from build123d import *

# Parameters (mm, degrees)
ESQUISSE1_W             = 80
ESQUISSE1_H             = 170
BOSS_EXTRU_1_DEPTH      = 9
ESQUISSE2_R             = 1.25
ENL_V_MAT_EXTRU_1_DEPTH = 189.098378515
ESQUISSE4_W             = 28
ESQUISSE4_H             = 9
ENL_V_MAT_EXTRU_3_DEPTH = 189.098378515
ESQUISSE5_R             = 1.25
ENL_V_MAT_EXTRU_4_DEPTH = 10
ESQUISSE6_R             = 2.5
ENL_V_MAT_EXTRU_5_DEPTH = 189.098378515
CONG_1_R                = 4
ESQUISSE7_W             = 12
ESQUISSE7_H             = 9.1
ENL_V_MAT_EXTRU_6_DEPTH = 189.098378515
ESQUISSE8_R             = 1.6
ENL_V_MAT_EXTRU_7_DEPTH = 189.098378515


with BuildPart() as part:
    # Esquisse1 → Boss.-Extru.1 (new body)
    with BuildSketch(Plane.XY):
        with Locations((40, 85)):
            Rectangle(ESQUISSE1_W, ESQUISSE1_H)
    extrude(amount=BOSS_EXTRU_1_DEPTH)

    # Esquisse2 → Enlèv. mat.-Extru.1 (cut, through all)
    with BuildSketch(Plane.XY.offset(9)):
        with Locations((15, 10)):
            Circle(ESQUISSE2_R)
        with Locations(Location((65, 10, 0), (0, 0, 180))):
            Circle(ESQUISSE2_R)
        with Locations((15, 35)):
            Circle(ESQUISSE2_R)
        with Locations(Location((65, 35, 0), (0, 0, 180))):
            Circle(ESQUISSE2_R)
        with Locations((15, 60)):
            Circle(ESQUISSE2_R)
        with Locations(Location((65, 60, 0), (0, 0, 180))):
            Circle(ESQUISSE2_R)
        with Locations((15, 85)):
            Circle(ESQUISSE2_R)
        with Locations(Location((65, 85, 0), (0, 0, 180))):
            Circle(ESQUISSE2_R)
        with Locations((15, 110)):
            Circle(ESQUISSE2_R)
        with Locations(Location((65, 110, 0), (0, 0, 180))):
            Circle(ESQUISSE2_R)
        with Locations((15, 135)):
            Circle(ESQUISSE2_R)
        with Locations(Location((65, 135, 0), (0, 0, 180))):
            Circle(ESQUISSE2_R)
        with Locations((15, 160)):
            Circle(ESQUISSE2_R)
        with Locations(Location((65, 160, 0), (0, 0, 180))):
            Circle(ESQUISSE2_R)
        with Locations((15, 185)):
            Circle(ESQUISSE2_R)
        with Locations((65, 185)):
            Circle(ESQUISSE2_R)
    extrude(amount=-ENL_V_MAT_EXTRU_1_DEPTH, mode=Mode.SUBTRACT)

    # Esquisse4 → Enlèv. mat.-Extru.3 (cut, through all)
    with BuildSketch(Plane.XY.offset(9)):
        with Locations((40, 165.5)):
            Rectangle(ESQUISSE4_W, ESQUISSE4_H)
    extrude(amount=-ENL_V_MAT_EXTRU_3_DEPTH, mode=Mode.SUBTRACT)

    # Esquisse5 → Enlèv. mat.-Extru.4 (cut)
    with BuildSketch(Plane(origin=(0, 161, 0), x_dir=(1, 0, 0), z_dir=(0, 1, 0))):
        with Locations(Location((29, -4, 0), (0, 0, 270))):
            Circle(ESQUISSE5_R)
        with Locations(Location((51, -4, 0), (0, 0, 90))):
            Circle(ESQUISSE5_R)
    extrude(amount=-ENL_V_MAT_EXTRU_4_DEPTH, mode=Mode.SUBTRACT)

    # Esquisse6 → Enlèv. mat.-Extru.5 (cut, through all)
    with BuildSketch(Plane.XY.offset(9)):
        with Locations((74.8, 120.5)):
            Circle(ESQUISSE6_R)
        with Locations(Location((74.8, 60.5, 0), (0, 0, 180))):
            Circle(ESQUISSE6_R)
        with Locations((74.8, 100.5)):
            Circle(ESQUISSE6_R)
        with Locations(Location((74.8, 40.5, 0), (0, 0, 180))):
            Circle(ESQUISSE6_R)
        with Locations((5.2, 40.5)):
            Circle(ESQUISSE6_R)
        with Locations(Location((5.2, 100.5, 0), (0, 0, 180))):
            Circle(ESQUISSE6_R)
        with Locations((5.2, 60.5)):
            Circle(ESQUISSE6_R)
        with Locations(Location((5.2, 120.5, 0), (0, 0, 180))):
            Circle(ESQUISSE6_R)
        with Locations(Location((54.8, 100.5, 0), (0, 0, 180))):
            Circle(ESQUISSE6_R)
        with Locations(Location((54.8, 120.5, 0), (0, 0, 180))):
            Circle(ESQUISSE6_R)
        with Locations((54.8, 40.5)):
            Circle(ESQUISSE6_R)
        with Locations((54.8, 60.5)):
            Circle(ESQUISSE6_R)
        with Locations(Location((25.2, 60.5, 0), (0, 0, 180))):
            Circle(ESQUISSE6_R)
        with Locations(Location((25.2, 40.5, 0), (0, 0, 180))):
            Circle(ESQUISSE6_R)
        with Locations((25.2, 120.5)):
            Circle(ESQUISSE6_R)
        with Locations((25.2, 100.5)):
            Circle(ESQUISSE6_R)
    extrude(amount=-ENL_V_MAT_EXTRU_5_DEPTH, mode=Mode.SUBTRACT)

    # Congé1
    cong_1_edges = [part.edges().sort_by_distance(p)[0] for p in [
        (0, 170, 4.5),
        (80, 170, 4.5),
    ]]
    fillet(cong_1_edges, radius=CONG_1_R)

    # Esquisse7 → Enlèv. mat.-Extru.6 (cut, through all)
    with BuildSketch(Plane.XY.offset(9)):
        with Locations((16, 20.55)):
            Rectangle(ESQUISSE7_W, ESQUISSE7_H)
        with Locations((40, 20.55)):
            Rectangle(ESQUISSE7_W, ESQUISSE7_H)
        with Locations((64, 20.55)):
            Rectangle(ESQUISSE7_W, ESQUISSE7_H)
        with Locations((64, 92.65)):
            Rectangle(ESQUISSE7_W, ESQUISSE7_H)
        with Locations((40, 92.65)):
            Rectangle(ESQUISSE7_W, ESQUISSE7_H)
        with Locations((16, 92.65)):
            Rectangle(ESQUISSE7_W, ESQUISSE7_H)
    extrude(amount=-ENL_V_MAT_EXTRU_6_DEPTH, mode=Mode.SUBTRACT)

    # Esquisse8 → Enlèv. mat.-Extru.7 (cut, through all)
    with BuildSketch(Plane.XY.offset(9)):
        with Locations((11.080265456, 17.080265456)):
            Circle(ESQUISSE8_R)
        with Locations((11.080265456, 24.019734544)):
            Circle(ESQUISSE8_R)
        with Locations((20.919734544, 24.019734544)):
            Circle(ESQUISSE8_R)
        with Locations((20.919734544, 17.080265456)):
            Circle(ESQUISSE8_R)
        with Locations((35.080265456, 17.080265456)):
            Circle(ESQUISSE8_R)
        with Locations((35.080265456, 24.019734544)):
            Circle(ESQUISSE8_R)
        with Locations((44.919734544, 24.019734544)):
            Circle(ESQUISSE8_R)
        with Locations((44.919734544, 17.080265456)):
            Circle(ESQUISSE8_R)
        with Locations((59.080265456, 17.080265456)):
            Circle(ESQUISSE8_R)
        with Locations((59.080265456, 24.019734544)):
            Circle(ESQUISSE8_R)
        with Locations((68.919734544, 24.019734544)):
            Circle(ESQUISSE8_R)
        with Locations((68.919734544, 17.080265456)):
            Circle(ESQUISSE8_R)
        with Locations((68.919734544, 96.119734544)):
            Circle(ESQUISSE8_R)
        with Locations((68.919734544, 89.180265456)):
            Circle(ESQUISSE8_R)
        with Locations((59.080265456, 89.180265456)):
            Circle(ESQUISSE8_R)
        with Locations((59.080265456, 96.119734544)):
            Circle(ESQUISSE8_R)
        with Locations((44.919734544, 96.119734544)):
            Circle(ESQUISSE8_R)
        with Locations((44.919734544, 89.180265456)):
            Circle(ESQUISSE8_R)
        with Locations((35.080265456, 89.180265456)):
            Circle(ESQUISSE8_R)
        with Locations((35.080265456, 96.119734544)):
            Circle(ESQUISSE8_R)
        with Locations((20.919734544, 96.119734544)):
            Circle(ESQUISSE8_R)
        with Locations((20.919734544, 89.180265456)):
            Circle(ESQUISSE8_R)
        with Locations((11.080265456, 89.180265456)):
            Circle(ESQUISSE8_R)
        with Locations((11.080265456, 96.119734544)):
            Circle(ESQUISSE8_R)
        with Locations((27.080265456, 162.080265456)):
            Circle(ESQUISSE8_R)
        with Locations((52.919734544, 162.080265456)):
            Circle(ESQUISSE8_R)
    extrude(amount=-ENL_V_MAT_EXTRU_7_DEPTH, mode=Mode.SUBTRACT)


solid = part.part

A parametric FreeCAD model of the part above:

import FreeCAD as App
import Part
import Sketcher


def edges_at(feature, points):
    """Names of the edges that pass closest to the given points."""
    edges = feature.Shape.Edges
    near = lambda p: min(range(len(edges)), key=lambda i: edges[i].distToShape(Part.Vertex(*p))[0])
    return sorted({f"Edge{near(p) + 1}" for p in points})


def add_polygon(sketch, points):
    """Adds a closed chain of lines whose ends are joined by coincident constraints."""
    first, n = sketch.GeometryCount, len(points)
    for a, b in zip(points, points[1:] + points[:1]):
        sketch.addGeometry(Part.LineSegment(App.Vector(*a, 0), App.Vector(*b, 0)), False)
    for i in range(n):
        sketch.addConstraint(Sketcher.Constraint("Coincident", first + i, 2, first + (i + 1) % n, 1))

doc = App.newDocument("Part")
body = doc.addObject("PartDesign::Body", "Body")

# Sketch on XY plane
sketch1 = doc.addObject("Sketcher::SketchObject", "Sketch")
body.addObject(sketch1)
sketch1.AttachmentSupport = (doc.XY_Plane, [""])
sketch1.MapMode = "FlatFace"
add_polygon(sketch1, [(0, 170), (0, 0), (80, 0), (80, 170)])  # lines 0-3
sketch1.addConstraint(Sketcher.Constraint("Vertical", 0))
sketch1.addConstraint(Sketcher.Constraint("Horizontal", 1))
sketch1.addConstraint(Sketcher.Constraint("Vertical", 2))
sketch1.addConstraint(Sketcher.Constraint("Horizontal", 3))
sketch1.addConstraint(Sketcher.Constraint("Coincident", 0, 2, -1, 1))
sketch1.addConstraint(Sketcher.Constraint("DistanceX", 1, 1, 1, 2, 80.0))
sketch1.addConstraint(Sketcher.Constraint("DistanceY", 0, 2, 0, 1, 170.0))
pad1 = doc.addObject("PartDesign::Pad", "Pad")
body.addObject(pad1)
pad1.Profile = sketch1
pad1.Length = 9

# Sketch on XY plane
sketch2 = doc.addObject("Sketcher::SketchObject", "Sketch001")
body.addObject(sketch2)
sketch2.AttachmentSupport = (doc.XY_Plane, [""])
sketch2.MapMode = "FlatFace"
sketch2.AttachmentOffset = App.Placement(App.Vector(0, 0, 9), App.Rotation())
sketch2.addGeometry(Part.Circle(App.Vector(15, 10, 0), App.Vector(0, 0, 1), 1.2), False)
sketch2.addGeometry(Part.Circle(App.Vector(65, 10, 0), App.Vector(0, 0, 1), 1.2), False)
sketch2.addGeometry(Part.Circle(App.Vector(15, 35, 0), App.Vector(0, 0, 1), 1.2), False)
sketch2.addGeometry(Part.Circle(App.Vector(65, 35, 0), App.Vector(0, 0, 1), 1.2), False)
sketch2.addGeometry(Part.Circle(App.Vector(15, 60, 0), App.Vector(0, 0, 1), 1.2), False)
sketch2.addGeometry(Part.Circle(App.Vector(65, 60, 0), App.Vector(0, 0, 1), 1.2), False)
sketch2.addGeometry(Part.Circle(App.Vector(15, 85, 0), App.Vector(0, 0, 1), 1.2), False)
sketch2.addGeometry(Part.Circle(App.Vector(65, 85, 0), App.Vector(0, 0, 1), 1.2), False)
sketch2.addGeometry(Part.Circle(App.Vector(15, 110, 0), App.Vector(0, 0, 1), 1.2), False)
sketch2.addGeometry(Part.Circle(App.Vector(65, 110, 0), App.Vector(0, 0, 1), 1.2), False)
sketch2.addGeometry(Part.Circle(App.Vector(15, 135, 0), App.Vector(0, 0, 1), 1.2), False)
sketch2.addGeometry(Part.Circle(App.Vector(65, 135, 0), App.Vector(0, 0, 1), 1.2), False)
sketch2.addGeometry(Part.Circle(App.Vector(15, 160, 0), App.Vector(0, 0, 1), 1.2), False)
sketch2.addGeometry(Part.Circle(App.Vector(65, 160, 0), App.Vector(0, 0, 1), 1.2), False)
sketch2.addGeometry(Part.Circle(App.Vector(15, 185, 0), App.Vector(0, 0, 1), 1.2), False)
sketch2.addGeometry(Part.Circle(App.Vector(65, 185, 0), App.Vector(0, 0, 1), 1.2), False)
sketch2.addConstraint(Sketcher.Constraint("Equal", 0, 1))
sketch2.addConstraint(Sketcher.Constraint("Equal", 1, 2))
sketch2.addConstraint(Sketcher.Constraint("Equal", 2, 3))
sketch2.addConstraint(Sketcher.Constraint("Equal", 3, 4))
sketch2.addConstraint(Sketcher.Constraint("Equal", 4, 5))
sketch2.addConstraint(Sketcher.Constraint("Equal", 5, 6))
sketch2.addConstraint(Sketcher.Constraint("Equal", 6, 7))
sketch2.addConstraint(Sketcher.Constraint("Equal", 7, 8))
sketch2.addConstraint(Sketcher.Constraint("Equal", 8, 9))
sketch2.addConstraint(Sketcher.Constraint("Equal", 9, 10))
sketch2.addConstraint(Sketcher.Constraint("Equal", 10, 11))
sketch2.addConstraint(Sketcher.Constraint("Equal", 11, 12))
sketch2.addConstraint(Sketcher.Constraint("Equal", 12, 13))
sketch2.addConstraint(Sketcher.Constraint("Equal", 13, 14))
sketch2.addConstraint(Sketcher.Constraint("Equal", 14, 15))
sketch2.addConstraint(Sketcher.Constraint("Horizontal", 0, 3, 1, 3))
sketch2.addConstraint(Sketcher.Constraint("Horizontal", 2, 3, 3, 3))
sketch2.addConstraint(Sketcher.Constraint("Horizontal", 4, 3, 5, 3))
sketch2.addConstraint(Sketcher.Constraint("Horizontal", 6, 3, 7, 3))
sketch2.addConstraint(Sketcher.Constraint("Horizontal", 8, 3, 9, 3))
sketch2.addConstraint(Sketcher.Constraint("Horizontal", 10, 3, 11, 3))
sketch2.addConstraint(Sketcher.Constraint("Horizontal", 12, 3, 13, 3))
sketch2.addConstraint(Sketcher.Constraint("Horizontal", 14, 3, 15, 3))
sketch2.addConstraint(Sketcher.Constraint("Vertical", 0, 3, 2, 3))
sketch2.addConstraint(Sketcher.Constraint("Vertical", 1, 3, 3, 3))
sketch2.addConstraint(Sketcher.Constraint("Vertical", 2, 3, 4, 3))
sketch2.addConstraint(Sketcher.Constraint("Vertical", 3, 3, 5, 3))
sketch2.addConstraint(Sketcher.Constraint("Vertical", 4, 3, 6, 3))
sketch2.addConstraint(Sketcher.Constraint("Vertical", 5, 3, 7, 3))
sketch2.addConstraint(Sketcher.Constraint("Vertical", 6, 3, 8, 3))
sketch2.addConstraint(Sketcher.Constraint("Vertical", 7, 3, 9, 3))
sketch2.addConstraint(Sketcher.Constraint("Vertical", 8, 3, 10, 3))
sketch2.addConstraint(Sketcher.Constraint("Vertical", 9, 3, 11, 3))
sketch2.addConstraint(Sketcher.Constraint("Vertical", 10, 3, 12, 3))
sketch2.addConstraint(Sketcher.Constraint("Vertical", 11, 3, 13, 3))
sketch2.addConstraint(Sketcher.Constraint("Vertical", 12, 3, 14, 3))
sketch2.addConstraint(Sketcher.Constraint("Vertical", 13, 3, 15, 3))
sketch2.addConstraint(Sketcher.Constraint("Diameter", 0, 2.5))
sketch2.addConstraint(Sketcher.Constraint("DistanceX", -1, 1, 0, 3, 15.0))
sketch2.addConstraint(Sketcher.Constraint("DistanceY", -1, 1, 0, 3, 10.0))
sketch2.addConstraint(Sketcher.Constraint("DistanceX", -1, 1, 1, 3, 65.0))
sketch2.addConstraint(Sketcher.Constraint("DistanceY", -1, 1, 2, 3, 35.0))
sketch2.addConstraint(Sketcher.Constraint("DistanceY", -1, 1, 4, 3, 60.0))
sketch2.addConstraint(Sketcher.Constraint("DistanceY", -1, 1, 6, 3, 85.0))
sketch2.addConstraint(Sketcher.Constraint("DistanceY", -1, 1, 8, 3, 110.0))
sketch2.addConstraint(Sketcher.Constraint("DistanceY", -1, 1, 10, 3, 135.0))
sketch2.addConstraint(Sketcher.Constraint("DistanceY", -1, 1, 12, 3, 160.0))
sketch2.addConstraint(Sketcher.Constraint("DistanceY", -1, 1, 14, 3, 185.0))
pocket1 = doc.addObject("PartDesign::Pocket", "Pocket")
body.addObject(pocket1)
pocket1.Profile = sketch2
pocket1.Type = "ThroughAll"

# Sketch on XY plane
sketch3 = doc.addObject("Sketcher::SketchObject", "Sketch002")
body.addObject(sketch3)
sketch3.AttachmentSupport = (doc.XY_Plane, [""])
sketch3.MapMode = "FlatFace"
sketch3.AttachmentOffset = App.Placement(App.Vector(0, 0, 9), App.Rotation())
add_polygon(sketch3, [(26, 170), (26, 161), (54, 161), (54, 170)])  # lines 0-3
sketch3.addConstraint(Sketcher.Constraint("Vertical", 0))
sketch3.addConstraint(Sketcher.Constraint("Horizontal", 1))
sketch3.addConstraint(Sketcher.Constraint("Vertical", 2))
sketch3.addConstraint(Sketcher.Constraint("Horizontal", 3))
sketch3.addConstraint(Sketcher.Constraint("DistanceX", 1, 1, 1, 2, 28.0))
sketch3.addConstraint(Sketcher.Constraint("DistanceY", 0, 2, 0, 1, 9.0))
sketch3.addConstraint(Sketcher.Constraint("DistanceX", -1, 1, 0, 2, 26.0))
sketch3.addConstraint(Sketcher.Constraint("DistanceY", -1, 1, 0, 2, 161.0))
pocket2 = doc.addObject("PartDesign::Pocket", "Pocket001")
body.addObject(pocket2)
pocket2.Profile = sketch3
pocket2.Type = "ThroughAll"

# Sketch on XZ plane
sketch4 = doc.addObject("Sketcher::SketchObject", "Sketch003")
body.addObject(sketch4)
sketch4.AttachmentSupport = (doc.XZ_Plane, [""])
sketch4.MapMode = "FlatFace"
sketch4.AttachmentOffset = App.Placement(App.Vector(0, 0, -161), App.Rotation())
sketch4.addGeometry(Part.Circle(App.Vector(29, 4, 0), App.Vector(0, 0, 1), 1.2), False)
sketch4.addGeometry(Part.Circle(App.Vector(51, 4, 0), App.Vector(0, 0, 1), 1.2), False)
sketch4.addConstraint(Sketcher.Constraint("Equal", 0, 1))
sketch4.addConstraint(Sketcher.Constraint("Horizontal", 0, 3, 1, 3))
sketch4.addConstraint(Sketcher.Constraint("Diameter", 0, 2.5))
sketch4.addConstraint(Sketcher.Constraint("DistanceX", -1, 1, 0, 3, 29.0))
sketch4.addConstraint(Sketcher.Constraint("DistanceY", -1, 1, 0, 3, 4.0))
sketch4.addConstraint(Sketcher.Constraint("DistanceX", -1, 1, 1, 3, 51.0))
pocket3 = doc.addObject("PartDesign::Pocket", "Pocket002")
body.addObject(pocket3)
pocket3.Profile = sketch4
pocket3.Length = 10
pocket3.Reversed = True

# Sketch on XY plane
sketch5 = doc.addObject("Sketcher::SketchObject", "Sketch004")
body.addObject(sketch5)
sketch5.AttachmentSupport = (doc.XY_Plane, [""])
sketch5.MapMode = "FlatFace"
sketch5.AttachmentOffset = App.Placement(App.Vector(0, 0, 9), App.Rotation())
sketch5.addGeometry(Part.Circle(App.Vector(74.8, 120.5, 0), App.Vector(0, 0, 1), 2.5), False)
sketch5.addGeometry(Part.Circle(App.Vector(74.8, 60.5, 0), App.Vector(0, 0, 1), 2.5), False)
sketch5.addGeometry(Part.Circle(App.Vector(74.8, 100.5, 0), App.Vector(0, 0, 1), 2.5), False)
sketch5.addGeometry(Part.Circle(App.Vector(74.8, 40.5, 0), App.Vector(0, 0, 1), 2.5), False)
sketch5.addGeometry(Part.Circle(App.Vector(5.2, 40.5, 0), App.Vector(0, 0, 1), 2.5), False)
sketch5.addGeometry(Part.Circle(App.Vector(5.2, 100.5, 0), App.Vector(0, 0, 1), 2.5), False)
sketch5.addGeometry(Part.Circle(App.Vector(5.2, 60.5, 0), App.Vector(0, 0, 1), 2.5), False)
sketch5.addGeometry(Part.Circle(App.Vector(5.2, 120.5, 0), App.Vector(0, 0, 1), 2.5), False)
sketch5.addGeometry(Part.Circle(App.Vector(54.8, 100.5, 0), App.Vector(0, 0, 1), 2.5), False)
sketch5.addGeometry(Part.Circle(App.Vector(54.8, 120.5, 0), App.Vector(0, 0, 1), 2.5), False)
sketch5.addGeometry(Part.Circle(App.Vector(54.8, 40.5, 0), App.Vector(0, 0, 1), 2.5), False)
sketch5.addGeometry(Part.Circle(App.Vector(54.8, 60.5, 0), App.Vector(0, 0, 1), 2.5), False)
sketch5.addGeometry(Part.Circle(App.Vector(25.2, 60.5, 0), App.Vector(0, 0, 1), 2.5), False)
sketch5.addGeometry(Part.Circle(App.Vector(25.2, 40.5, 0), App.Vector(0, 0, 1), 2.5), False)
sketch5.addGeometry(Part.Circle(App.Vector(25.2, 120.5, 0), App.Vector(0, 0, 1), 2.5), False)
sketch5.addGeometry(Part.Circle(App.Vector(25.2, 100.5, 0), App.Vector(0, 0, 1), 2.5), False)
sketch5.addConstraint(Sketcher.Constraint("Equal", 0, 1))
sketch5.addConstraint(Sketcher.Constraint("Equal", 1, 2))
sketch5.addConstraint(Sketcher.Constraint("Equal", 2, 3))
sketch5.addConstraint(Sketcher.Constraint("Equal", 3, 4))
sketch5.addConstraint(Sketcher.Constraint("Equal", 4, 5))
sketch5.addConstraint(Sketcher.Constraint("Equal", 5, 6))
sketch5.addConstraint(Sketcher.Constraint("Equal", 6, 7))
sketch5.addConstraint(Sketcher.Constraint("Equal", 7, 8))
sketch5.addConstraint(Sketcher.Constraint("Equal", 8, 9))
sketch5.addConstraint(Sketcher.Constraint("Equal", 9, 10))
sketch5.addConstraint(Sketcher.Constraint("Equal", 10, 11))
sketch5.addConstraint(Sketcher.Constraint("Equal", 11, 12))
sketch5.addConstraint(Sketcher.Constraint("Equal", 12, 13))
sketch5.addConstraint(Sketcher.Constraint("Equal", 13, 14))
sketch5.addConstraint(Sketcher.Constraint("Equal", 14, 15))
sketch5.addConstraint(Sketcher.Constraint("Horizontal", 3, 3, 4, 3))
sketch5.addConstraint(Sketcher.Constraint("Horizontal", 2, 3, 5, 3))
sketch5.addConstraint(Sketcher.Constraint("Horizontal", 1, 3, 6, 3))
sketch5.addConstraint(Sketcher.Constraint("Horizontal", 0, 3, 7, 3))
sketch5.addConstraint(Sketcher.Constraint("Horizontal", 5, 3, 8, 3))
sketch5.addConstraint(Sketcher.Constraint("Horizontal", 7, 3, 9, 3))
sketch5.addConstraint(Sketcher.Constraint("Horizontal", 4, 3, 10, 3))
sketch5.addConstraint(Sketcher.Constraint("Horizontal", 6, 3, 11, 3))
sketch5.addConstraint(Sketcher.Constraint("Horizontal", 11, 3, 12, 3))
sketch5.addConstraint(Sketcher.Constraint("Horizontal", 10, 3, 13, 3))
sketch5.addConstraint(Sketcher.Constraint("Horizontal", 9, 3, 14, 3))
sketch5.addConstraint(Sketcher.Constraint("Horizontal", 8, 3, 15, 3))
sketch5.addConstraint(Sketcher.Constraint("Vertical", 0, 3, 1, 3))
sketch5.addConstraint(Sketcher.Constraint("Vertical", 1, 3, 2, 3))
sketch5.addConstraint(Sketcher.Constraint("Vertical", 2, 3, 3, 3))
sketch5.addConstraint(Sketcher.Constraint("Vertical", 4, 3, 5, 3))
sketch5.addConstraint(Sketcher.Constraint("Vertical", 5, 3, 6, 3))
sketch5.addConstraint(Sketcher.Constraint("Vertical", 6, 3, 7, 3))
sketch5.addConstraint(Sketcher.Constraint("Vertical", 8, 3, 9, 3))
sketch5.addConstraint(Sketcher.Constraint("Vertical", 9, 3, 10, 3))
sketch5.addConstraint(Sketcher.Constraint("Vertical", 10, 3, 11, 3))
sketch5.addConstraint(Sketcher.Constraint("Vertical", 12, 3, 13, 3))
sketch5.addConstraint(Sketcher.Constraint("Vertical", 13, 3, 14, 3))
sketch5.addConstraint(Sketcher.Constraint("Vertical", 14, 3, 15, 3))
sketch5.addConstraint(Sketcher.Constraint("Diameter", 0, 5.0))
sketch5.addConstraint(Sketcher.Constraint("DistanceY", 1, 3, 0, 3, 60.0))
sketch5.addConstraint(Sketcher.Constraint("DistanceY", 2, 3, 0, 3, 20.0))
sketch5.addConstraint(Sketcher.Constraint("DistanceY", 3, 3, 1, 3, 20.0))
sketch5.addConstraint(Sketcher.Constraint("DistanceX", 8, 3, 2, 3, 20.0))
sketch5.addConstraint(Sketcher.Constraint("DistanceX", 6, 3, 12, 3, 20.0))
sketch5.addConstraint(Sketcher.Constraint("DistanceX", -1, 1, 0, 3, 74.8))
sketch5.addConstraint(Sketcher.Constraint("DistanceY", -1, 1, 0, 3, 120.5))
sketch5.addConstraint(Sketcher.Constraint("DistanceX", -1, 1, 4, 3, 5.2))
pocket4 = doc.addObject("PartDesign::Pocket", "Pocket003")
body.addObject(pocket4)
pocket4.Profile = sketch5
pocket4.Type = "ThroughAll"
doc.recompute()

fillet = doc.addObject("PartDesign::Fillet", "Fillet")
body.addObject(fillet)
fillet.Base = (pocket4, edges_at(pocket4, [(0, 170, 4.5), (80, 170, 4.5)]))
fillet.Radius = 4

# Sketch on XY plane
sketch6 = doc.addObject("Sketcher::SketchObject", "Sketch005")
body.addObject(sketch6)
sketch6.AttachmentSupport = (doc.XY_Plane, [""])
sketch6.MapMode = "FlatFace"
sketch6.AttachmentOffset = App.Placement(App.Vector(0, 0, 9), App.Rotation())
add_polygon(sketch6, [(10, 25), (10, 16), (22, 16), (22, 25)])  # lines 0-3
add_polygon(sketch6, [(34, 25), (34, 16), (46, 16), (46, 25)])  # lines 4-7
add_polygon(sketch6, [(58, 25), (58, 16), (70, 16), (70, 25)])  # lines 8-11
add_polygon(sketch6, [(58, 97), (58, 88), (70, 88), (70, 97)])  # lines 12-15
add_polygon(sketch6, [(34, 97), (34, 88), (46, 88), (46, 97)])  # lines 16-19
add_polygon(sketch6, [(10, 97), (10, 88), (22, 88), (22, 97)])  # lines 20-23
sketch6.addConstraint(Sketcher.Constraint("Vertical", 0))
sketch6.addConstraint(Sketcher.Constraint("Horizontal", 1))
sketch6.addConstraint(Sketcher.Constraint("Vertical", 2))
sketch6.addConstraint(Sketcher.Constraint("Horizontal", 3))
sketch6.addConstraint(Sketcher.Constraint("Vertical", 4))
sketch6.addConstraint(Sketcher.Constraint("Horizontal", 5))
sketch6.addConstraint(Sketcher.Constraint("Vertical", 6))
sketch6.addConstraint(Sketcher.Constraint("Horizontal", 7))
sketch6.addConstraint(Sketcher.Constraint("Vertical", 8))
sketch6.addConstraint(Sketcher.Constraint("Horizontal", 9))
sketch6.addConstraint(Sketcher.Constraint("Vertical", 10))
sketch6.addConstraint(Sketcher.Constraint("Horizontal", 11))
sketch6.addConstraint(Sketcher.Constraint("Vertical", 12))
sketch6.addConstraint(Sketcher.Constraint("Horizontal", 13))
sketch6.addConstraint(Sketcher.Constraint("Vertical", 14))
sketch6.addConstraint(Sketcher.Constraint("Horizontal", 15))
sketch6.addConstraint(Sketcher.Constraint("Vertical", 16))
sketch6.addConstraint(Sketcher.Constraint("Horizontal", 17))
sketch6.addConstraint(Sketcher.Constraint("Vertical", 18))
sketch6.addConstraint(Sketcher.Constraint("Horizontal", 19))
sketch6.addConstraint(Sketcher.Constraint("Vertical", 20))
sketch6.addConstraint(Sketcher.Constraint("Horizontal", 21))
sketch6.addConstraint(Sketcher.Constraint("Vertical", 22))
sketch6.addConstraint(Sketcher.Constraint("Horizontal", 23))
sketch6.addConstraint(Sketcher.Constraint("Horizontal", 1, 2, 4, 2))
sketch6.addConstraint(Sketcher.Constraint("Horizontal", 3, 2, 6, 2))
sketch6.addConstraint(Sketcher.Constraint("Horizontal", 5, 2, 8, 2))
sketch6.addConstraint(Sketcher.Constraint("Horizontal", 7, 2, 10, 2))
sketch6.addConstraint(Sketcher.Constraint("Horizontal", 13, 2, 16, 2))
sketch6.addConstraint(Sketcher.Constraint("Horizontal", 15, 2, 18, 2))
sketch6.addConstraint(Sketcher.Constraint("Horizontal", 17, 2, 20, 2))
sketch6.addConstraint(Sketcher.Constraint("Horizontal", 19, 2, 22, 2))
sketch6.addConstraint(Sketcher.Constraint("Vertical", 11, 2, 12, 2))
sketch6.addConstraint(Sketcher.Constraint("Vertical", 10, 2, 13, 2))
sketch6.addConstraint(Sketcher.Constraint("Vertical", 7, 2, 16, 2))
sketch6.addConstraint(Sketcher.Constraint("Vertical", 6, 2, 17, 2))
sketch6.addConstraint(Sketcher.Constraint("Vertical", 3, 2, 20, 2))
sketch6.addConstraint(Sketcher.Constraint("Vertical", 2, 2, 21, 2))
sketch6.addConstraint(Sketcher.Constraint("Equal", 3, 5))
sketch6.addConstraint(Sketcher.Constraint("Equal", 7, 9))
sketch6.addConstraint(Sketcher.Constraint("Equal", 10, 12))
sketch6.addConstraint(Sketcher.Constraint("DistanceX", 1, 1, 1, 2, 12.0))
sketch6.addConstraint(Sketcher.Constraint("DistanceY", 0, 2, 0, 1, 9.1))
sketch6.addConstraint(Sketcher.Constraint("DistanceX", -1, 1, 0, 2, 10.0))
sketch6.addConstraint(Sketcher.Constraint("DistanceY", -1, 1, 0, 2, 16.0))
sketch6.addConstraint(Sketcher.Constraint("DistanceX", -1, 1, 4, 2, 34.0))
sketch6.addConstraint(Sketcher.Constraint("DistanceX", -1, 1, 8, 2, 58.0))
sketch6.addConstraint(Sketcher.Constraint("DistanceY", 11, 2, 12, 2, 63.0))
pocket5 = doc.addObject("PartDesign::Pocket", "Pocket004")
body.addObject(pocket5)
pocket5.Profile = sketch6
pocket5.Type = "ThroughAll"

# Sketch on XY plane
sketch7 = doc.addObject("Sketcher::SketchObject", "Sketch006")
body.addObject(sketch7)
sketch7.AttachmentSupport = (doc.XY_Plane, [""])
sketch7.MapMode = "FlatFace"
sketch7.AttachmentOffset = App.Placement(App.Vector(0, 0, 9), App.Rotation())
sketch7.addGeometry(Part.Circle(App.Vector(11.1, 17.1, 0), App.Vector(0, 0, 1), 1.6), False)
sketch7.addGeometry(Part.Circle(App.Vector(11.1, 24, 0), App.Vector(0, 0, 1), 1.6), False)
sketch7.addGeometry(Part.Circle(App.Vector(20.9, 24, 0), App.Vector(0, 0, 1), 1.6), False)
sketch7.addGeometry(Part.Circle(App.Vector(20.9, 17.1, 0), App.Vector(0, 0, 1), 1.6), False)
sketch7.addGeometry(Part.Circle(App.Vector(35.1, 17.1, 0), App.Vector(0, 0, 1), 1.6), False)
sketch7.addGeometry(Part.Circle(App.Vector(35.1, 24, 0), App.Vector(0, 0, 1), 1.6), False)
sketch7.addGeometry(Part.Circle(App.Vector(44.9, 24, 0), App.Vector(0, 0, 1), 1.6), False)
sketch7.addGeometry(Part.Circle(App.Vector(44.9, 17.1, 0), App.Vector(0, 0, 1), 1.6), False)
sketch7.addGeometry(Part.Circle(App.Vector(59.1, 17.1, 0), App.Vector(0, 0, 1), 1.6), False)
sketch7.addGeometry(Part.Circle(App.Vector(59.1, 24, 0), App.Vector(0, 0, 1), 1.6), False)
sketch7.addGeometry(Part.Circle(App.Vector(68.9, 24, 0), App.Vector(0, 0, 1), 1.6), False)
sketch7.addGeometry(Part.Circle(App.Vector(68.9, 17.1, 0), App.Vector(0, 0, 1), 1.6), False)
sketch7.addGeometry(Part.Circle(App.Vector(68.9, 96.1, 0), App.Vector(0, 0, 1), 1.6), False)
sketch7.addGeometry(Part.Circle(App.Vector(68.9, 89.2, 0), App.Vector(0, 0, 1), 1.6), False)
sketch7.addGeometry(Part.Circle(App.Vector(59.1, 89.2, 0), App.Vector(0, 0, 1), 1.6), False)
sketch7.addGeometry(Part.Circle(App.Vector(59.1, 96.1, 0), App.Vector(0, 0, 1), 1.6), False)
sketch7.addGeometry(Part.Circle(App.Vector(44.9, 96.1, 0), App.Vector(0, 0, 1), 1.6), False)
sketch7.addGeometry(Part.Circle(App.Vector(44.9, 89.2, 0), App.Vector(0, 0, 1), 1.6), False)
sketch7.addGeometry(Part.Circle(App.Vector(35.1, 89.2, 0), App.Vector(0, 0, 1), 1.6), False)
sketch7.addGeometry(Part.Circle(App.Vector(35.1, 96.1, 0), App.Vector(0, 0, 1), 1.6), False)
sketch7.addGeometry(Part.Circle(App.Vector(20.9, 96.1, 0), App.Vector(0, 0, 1), 1.6), False)
sketch7.addGeometry(Part.Circle(App.Vector(20.9, 89.2, 0), App.Vector(0, 0, 1), 1.6), False)
sketch7.addGeometry(Part.Circle(App.Vector(11.1, 89.2, 0), App.Vector(0, 0, 1), 1.6), False)
sketch7.addGeometry(Part.Circle(App.Vector(11.1, 96.1, 0), App.Vector(0, 0, 1), 1.6), False)
sketch7.addGeometry(Part.Circle(App.Vector(27.1, 162.1, 0), App.Vector(0, 0, 1), 1.6), False)
sketch7.addGeometry(Part.Circle(App.Vector(52.9, 162.1, 0), App.Vector(0, 0, 1), 1.6), False)
sketch7.addConstraint(Sketcher.Constraint("Equal", 0, 1))
sketch7.addConstraint(Sketcher.Constraint("Equal", 1, 2))
sketch7.addConstraint(Sketcher.Constraint("Equal", 2, 3))
sketch7.addConstraint(Sketcher.Constraint("Equal", 3, 4))
sketch7.addConstraint(Sketcher.Constraint("Equal", 4, 5))
sketch7.addConstraint(Sketcher.Constraint("Equal", 5, 6))
sketch7.addConstraint(Sketcher.Constraint("Equal", 6, 7))
sketch7.addConstraint(Sketcher.Constraint("Equal", 7, 8))
sketch7.addConstraint(Sketcher.Constraint("Equal", 8, 9))
sketch7.addConstraint(Sketcher.Constraint("Equal", 9, 10))
sketch7.addConstraint(Sketcher.Constraint("Equal", 10, 11))
sketch7.addConstraint(Sketcher.Constraint("Equal", 11, 12))
sketch7.addConstraint(Sketcher.Constraint("Equal", 12, 13))
sketch7.addConstraint(Sketcher.Constraint("Equal", 13, 14))
sketch7.addConstraint(Sketcher.Constraint("Equal", 14, 15))
sketch7.addConstraint(Sketcher.Constraint("Equal", 15, 16))
sketch7.addConstraint(Sketcher.Constraint("Equal", 16, 17))
sketch7.addConstraint(Sketcher.Constraint("Equal", 17, 18))
sketch7.addConstraint(Sketcher.Constraint("Equal", 18, 19))
sketch7.addConstraint(Sketcher.Constraint("Equal", 19, 20))
sketch7.addConstraint(Sketcher.Constraint("Equal", 20, 21))
sketch7.addConstraint(Sketcher.Constraint("Equal", 21, 22))
sketch7.addConstraint(Sketcher.Constraint("Equal", 22, 23))
sketch7.addConstraint(Sketcher.Constraint("Equal", 23, 24))
sketch7.addConstraint(Sketcher.Constraint("Equal", 24, 25))
sketch7.addConstraint(Sketcher.Constraint("Horizontal", 1, 3, 2, 3))
sketch7.addConstraint(Sketcher.Constraint("Horizontal", 0, 3, 3, 3))
sketch7.addConstraint(Sketcher.Constraint("Horizontal", 3, 3, 4, 3))
sketch7.addConstraint(Sketcher.Constraint("Horizontal", 2, 3, 5, 3))
sketch7.addConstraint(Sketcher.Constraint("Horizontal", 5, 3, 6, 3))
sketch7.addConstraint(Sketcher.Constraint("Horizontal", 4, 3, 7, 3))
sketch7.addConstraint(Sketcher.Constraint("Horizontal", 7, 3, 8, 3))
sketch7.addConstraint(Sketcher.Constraint("Horizontal", 6, 3, 9, 3))
sketch7.addConstraint(Sketcher.Constraint("Horizontal", 9, 3, 10, 3))
sketch7.addConstraint(Sketcher.Constraint("Horizontal", 8, 3, 11, 3))
sketch7.addConstraint(Sketcher.Constraint("Horizontal", 13, 3, 14, 3))
sketch7.addConstraint(Sketcher.Constraint("Horizontal", 12, 3, 15, 3))
sketch7.addConstraint(Sketcher.Constraint("Horizontal", 15, 3, 16, 3))
sketch7.addConstraint(Sketcher.Constraint("Horizontal", 14, 3, 17, 3))
sketch7.addConstraint(Sketcher.Constraint("Horizontal", 17, 3, 18, 3))
sketch7.addConstraint(Sketcher.Constraint("Horizontal", 16, 3, 19, 3))
sketch7.addConstraint(Sketcher.Constraint("Horizontal", 19, 3, 20, 3))
sketch7.addConstraint(Sketcher.Constraint("Horizontal", 18, 3, 21, 3))
sketch7.addConstraint(Sketcher.Constraint("Horizontal", 21, 3, 22, 3))
sketch7.addConstraint(Sketcher.Constraint("Horizontal", 20, 3, 23, 3))
sketch7.addConstraint(Sketcher.Constraint("Horizontal", 24, 3, 25, 3))
sketch7.addConstraint(Sketcher.Constraint("Vertical", 0, 3, 1, 3))
sketch7.addConstraint(Sketcher.Constraint("Vertical", 2, 3, 3, 3))
sketch7.addConstraint(Sketcher.Constraint("Vertical", 4, 3, 5, 3))
sketch7.addConstraint(Sketcher.Constraint("Vertical", 6, 3, 7, 3))
sketch7.addConstraint(Sketcher.Constraint("Vertical", 8, 3, 9, 3))
sketch7.addConstraint(Sketcher.Constraint("Vertical", 10, 3, 11, 3))
sketch7.addConstraint(Sketcher.Constraint("Vertical", 11, 3, 12, 3))
sketch7.addConstraint(Sketcher.Constraint("Vertical", 12, 3, 13, 3))
sketch7.addConstraint(Sketcher.Constraint("Vertical", 9, 3, 14, 3))
sketch7.addConstraint(Sketcher.Constraint("Vertical", 14, 3, 15, 3))
sketch7.addConstraint(Sketcher.Constraint("Vertical", 7, 3, 16, 3))
sketch7.addConstraint(Sketcher.Constraint("Vertical", 16, 3, 17, 3))
sketch7.addConstraint(Sketcher.Constraint("Vertical", 5, 3, 18, 3))
sketch7.addConstraint(Sketcher.Constraint("Vertical", 18, 3, 19, 3))
sketch7.addConstraint(Sketcher.Constraint("Vertical", 3, 3, 20, 3))
sketch7.addConstraint(Sketcher.Constraint("Vertical", 20, 3, 21, 3))
sketch7.addConstraint(Sketcher.Constraint("Vertical", 1, 3, 22, 3))
sketch7.addConstraint(Sketcher.Constraint("Vertical", 22, 3, 23, 3))
sketch7.addConstraint(Sketcher.Constraint("Diameter", 0, 3.2))
sketch7.addConstraint(Sketcher.Constraint("DistanceX", 0, 3, 4, 3, 24.0))
sketch7.addConstraint(Sketcher.Constraint("DistanceX", 2, 3, 6, 3, 24.0))
sketch7.addConstraint(Sketcher.Constraint("DistanceX", 4, 3, 8, 3, 24.0))
sketch7.addConstraint(Sketcher.Constraint("DistanceX", 6, 3, 10, 3, 24.0))
sketch7.addConstraint(Sketcher.Constraint("DistanceX", 24, 3, 19, 3, 8.0))
sketch7.addConstraint(Sketcher.Constraint("DistanceX", 16, 3, 25, 3, 8.0))
sketch7.addConstraint(Sketcher.Constraint("DistanceY", 10, 3, 12, 3, 72.1))
sketch7.addConstraint(Sketcher.Constraint("DistanceY", 11, 3, 13, 3, 72.1))
sketch7.addConstraint(Sketcher.Constraint("DistanceY", 21, 3, 24, 3, 72.9))
sketch7.addConstraint(Sketcher.Constraint("DistanceY", 0, 3, 1, 3, 6.939469))
sketch7.addConstraint(Sketcher.Constraint("DistanceX", 1, 3, 2, 3, 9.839469))
sketch7.addConstraint(Sketcher.Constraint("DistanceX", -1, 1, 0, 3, 11.080265))
sketch7.addConstraint(Sketcher.Constraint("DistanceY", -1, 1, 0, 3, 17.080265))
pocket6 = doc.addObject("PartDesign::Pocket", "Pocket005")
body.addObject(pocket6)
pocket6.Profile = sketch7
pocket6.Type = "ThroughAll"

doc.recompute()
